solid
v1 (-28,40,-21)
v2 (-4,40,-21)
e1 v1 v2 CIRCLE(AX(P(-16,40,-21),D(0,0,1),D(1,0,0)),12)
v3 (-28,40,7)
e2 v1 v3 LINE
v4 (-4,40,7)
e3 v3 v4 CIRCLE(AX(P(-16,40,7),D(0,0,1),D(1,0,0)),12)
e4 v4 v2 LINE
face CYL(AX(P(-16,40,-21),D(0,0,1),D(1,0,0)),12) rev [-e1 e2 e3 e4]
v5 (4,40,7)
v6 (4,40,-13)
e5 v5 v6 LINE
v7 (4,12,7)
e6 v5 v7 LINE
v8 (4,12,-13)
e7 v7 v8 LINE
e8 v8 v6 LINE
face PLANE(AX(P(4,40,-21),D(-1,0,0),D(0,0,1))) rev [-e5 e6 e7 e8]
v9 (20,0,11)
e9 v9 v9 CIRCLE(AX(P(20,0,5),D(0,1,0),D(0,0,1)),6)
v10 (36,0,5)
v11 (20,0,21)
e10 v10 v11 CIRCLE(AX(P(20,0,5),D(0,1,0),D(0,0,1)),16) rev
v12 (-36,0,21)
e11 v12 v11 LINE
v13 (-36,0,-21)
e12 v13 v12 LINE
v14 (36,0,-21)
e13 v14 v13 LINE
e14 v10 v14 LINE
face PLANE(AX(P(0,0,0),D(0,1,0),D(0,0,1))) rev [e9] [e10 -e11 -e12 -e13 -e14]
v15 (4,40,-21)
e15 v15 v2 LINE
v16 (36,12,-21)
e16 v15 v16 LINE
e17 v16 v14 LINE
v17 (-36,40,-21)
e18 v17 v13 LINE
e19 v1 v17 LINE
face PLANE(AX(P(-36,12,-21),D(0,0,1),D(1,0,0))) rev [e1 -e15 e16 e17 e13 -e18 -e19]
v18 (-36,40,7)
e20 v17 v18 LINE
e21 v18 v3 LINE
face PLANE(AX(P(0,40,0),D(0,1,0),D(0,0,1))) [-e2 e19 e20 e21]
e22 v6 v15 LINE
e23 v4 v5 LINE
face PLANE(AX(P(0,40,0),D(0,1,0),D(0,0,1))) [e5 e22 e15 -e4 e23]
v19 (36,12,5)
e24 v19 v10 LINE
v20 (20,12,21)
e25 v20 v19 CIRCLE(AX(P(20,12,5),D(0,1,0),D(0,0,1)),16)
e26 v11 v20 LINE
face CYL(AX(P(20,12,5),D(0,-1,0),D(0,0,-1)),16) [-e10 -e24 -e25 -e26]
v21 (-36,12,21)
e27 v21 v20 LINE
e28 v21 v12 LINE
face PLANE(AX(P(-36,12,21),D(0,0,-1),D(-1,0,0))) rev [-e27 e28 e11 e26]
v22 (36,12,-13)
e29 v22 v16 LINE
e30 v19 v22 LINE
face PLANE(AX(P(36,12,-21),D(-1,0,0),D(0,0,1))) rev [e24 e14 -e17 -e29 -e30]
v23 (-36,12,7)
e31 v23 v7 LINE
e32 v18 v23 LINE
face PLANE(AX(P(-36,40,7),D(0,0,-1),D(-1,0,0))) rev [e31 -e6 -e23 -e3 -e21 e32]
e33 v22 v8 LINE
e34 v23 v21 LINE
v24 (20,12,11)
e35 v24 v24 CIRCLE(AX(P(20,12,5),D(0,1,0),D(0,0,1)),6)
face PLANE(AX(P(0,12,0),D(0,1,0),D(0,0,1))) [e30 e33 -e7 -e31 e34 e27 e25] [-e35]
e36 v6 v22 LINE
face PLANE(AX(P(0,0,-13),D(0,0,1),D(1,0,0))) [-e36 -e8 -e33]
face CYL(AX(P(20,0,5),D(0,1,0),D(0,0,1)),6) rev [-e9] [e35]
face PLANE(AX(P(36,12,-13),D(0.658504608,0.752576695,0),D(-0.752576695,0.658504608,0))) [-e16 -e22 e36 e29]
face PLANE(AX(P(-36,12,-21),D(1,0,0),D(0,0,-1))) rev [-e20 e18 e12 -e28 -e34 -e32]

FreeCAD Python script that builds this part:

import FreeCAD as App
import Part
import Sketcher


def edges_at(feature, points):
    """Names of the edges that pass closest to the given points."""
    edges = feature.Shape.Edges
    near = lambda p: min(range(len(edges)), key=lambda i: edges[i].distToShape(Part.Vertex(*p))[0])
    return sorted({f"Edge{near(p) + 1}" for p in points})


def add_polygon(sketch, points):
    """Adds a closed chain of lines whose ends are joined by coincident constraints."""
    first, n = sketch.GeometryCount, len(points)
    for a, b in zip(points, points[1:] + points[:1]):
        sketch.addGeometry(Part.LineSegment(App.Vector(*a, 0), App.Vector(*b, 0)), False)
    for i in range(n):
        sketch.addConstraint(Sketcher.Constraint("Coincident", first + i, 2, first + (i + 1) % n, 1))

doc = App.newDocument("Part")
params = doc.addObject("Spreadsheet::Sheet", "Params")
for row, (alias, value) in enumerate([
    ("sketch1_width", "72 mm"),
    ("sketch1_height", "42 mm"),
    ("pad1_length", "12 mm"),
    ("sketch2_width", "40 mm"),
    ("sketch2_height", "28 mm"),
    ("pad2_length", "28 mm"),
    ("sketch3_diameter", "24 mm"),
    ("sketch4_width", "32 mm"),
    ("sketch4_height", "28 mm"),
    ("pad3_length", "8 mm"),
    ("fillet_radius", "16 mm"),
    ("sketch5_diameter", "12 mm"),
], start=1):
    params.set(f"A{row}", alias)
    params.set(f"B{row}", "=" + value)
    params.setAlias(f"B{row}", alias)

body = doc.addObject("PartDesign::Body", "Body")

# Sketch on XZ plane
sketch1 = body.newObject("Sketcher::SketchObject", "Sketch")
sketch1.AttachmentSupport = (doc.getObject("XZ_Plane"), [""])
sketch1.MapMode = "FlatFace"
add_polygon(sketch1, [(-36, -21), (-36, 21), (36, 21), (36, -21)])  # lines 0-3
sketch1.addConstraint(Sketcher.Constraint("Vertical", 0))
sketch1.addConstraint(Sketcher.Constraint("Horizontal", 1))
sketch1.addConstraint(Sketcher.Constraint("Vertical", 2))
sketch1.addConstraint(Sketcher.Constraint("Horizontal", 3))
sketch1.addConstraint(Sketcher.Constraint("Symmetric", 0, 2, 2, 2, -1, 1))
sketch1.addConstraint(Sketcher.Constraint("DistanceX", 1, 1, 1, 2, 72.0))
sketch1.addConstraint(Sketcher.Constraint("DistanceY", 0, 1, 0, 2, 42.0))
sketch1.setExpression("Constraints[9]", "Params.sketch1_width")
sketch1.setExpression("Constraints[10]", "Params.sketch1_height")
pad1 = body.newObject("PartDesign::Pad", "Pad")
pad1.Profile = sketch1
pad1.setExpression("Length", "Params.pad1_length")
pad1.Reversed = True

# Sketch on XZ plane
sketch2 = body.newObject("Sketcher::SketchObject", "Sketch001")
sketch2.AttachmentSupport = (doc.getObject("XZ_Plane"), [""])
sketch2.MapMode = "FlatFace"
sketch2.AttachmentOffset = App.Placement(App.Vector(0, 0, -12), App.Rotation())
add_polygon(sketch2, [(-36, -21), (-36, 7), (4, 7), (4, -21)])  # lines 0-3
sketch2.addConstraint(Sketcher.Constraint("Vertical", 0))
sketch2.addConstraint(Sketcher.Constraint("Horizontal", 1))
sketch2.addConstraint(Sketcher.Constraint("Vertical", 2))
sketch2.addConstraint(Sketcher.Constraint("Horizontal", 3))
sketch2.addConstraint(Sketcher.Constraint("DistanceX", 1, 1, 1, 2, 40.0))
sketch2.addConstraint(Sketcher.Constraint("DistanceY", 0, 1, 0, 2, 28.0))
sketch2.addConstraint(Sketcher.Constraint("DistanceX", 0, 2, -1, 1, 36.0))
sketch2.addConstraint(Sketcher.Constraint("DistanceY", -1, 1, 0, 2, 7.0))
sketch2.setExpression("Constraints[8]", "Params.sketch2_width")
sketch2.setExpression("Constraints[9]", "Params.sketch2_height")
pad2 = body.newObject("PartDesign::Pad", "Pad001")
pad2.Profile = sketch2
pad2.setExpression("Length", "Params.pad2_length")
pad2.Reversed = True

# Sketch on XY plane
sketch3 = body.newObject("Sketcher::SketchObject", "Sketch002")
sketch3.AttachmentSupport = (doc.getObject("XY_Plane"), [""])
sketch3.MapMode = "FlatFace"
sketch3.AttachmentOffset = App.Placement(App.Vector(0, 0, 7), App.Rotation())
sketch3.addGeometry(Part.Circle(App.Vector(-16, 40, 0), App.Vector(0, 0, 1), 12), False)
sketch3.addConstraint(Sketcher.Constraint("Diameter", 0, 24.0))
sketch3.addConstraint(Sketcher.Constraint("DistanceX", 0, 3, -1, 1, 16.0))
sketch3.addConstraint(Sketcher.Constraint("DistanceY", -1, 1, 0, 3, 40.0))
sketch3.setExpression("Constraints[0]", "Params.sketch3_diameter")
pocket1 = body.newObject("PartDesign::Pocket", "Pocket")
pocket1.Profile = sketch3
pocket1.Type = "ThroughAll"

# Sketch on XY plane
sketch4 = body.newObject("Sketcher::SketchObject", "Sketch003")
sketch4.AttachmentSupport = (doc.getObject("XY_Plane"), [""])
sketch4.MapMode = "FlatFace"
sketch4.AttachmentOffset = App.Placement(App.Vector(0, 0, -21), App.Rotation())
add_polygon(sketch4, [(4, 12), (4, 40), (36, 12)])  # lines 0-2
sketch4.addConstraint(Sketcher.Constraint("Vertical", 0))
sketch4.addConstraint(Sketcher.Constraint("Horizontal", 2))
sketch4.addConstraint(Sketcher.Constraint("DistanceX", 2, 2, 2, 1, 32.0))
sketch4.addConstraint(Sketcher.Constraint("DistanceY", 0, 1, 0, 2, 28.0))
sketch4.addConstraint(Sketcher.Constraint("DistanceX", -1, 1, 0, 2, 4.0))
sketch4.addConstraint(Sketcher.Constraint("DistanceY", -1, 1, 0, 2, 40.0))
sketch4.setExpression("Constraints[5]", "Params.sketch4_width")
sketch4.setExpression("Constraints[6]", "Params.sketch4_height")
pad3 = body.newObject("PartDesign::Pad", "Pad002")
pad3.Profile = sketch4
pad3.setExpression("Length", "Params.pad3_length")
doc.recompute()

fillet = body.newObject("PartDesign::Fillet", "Fillet")
fillet.Base = (pad3, edges_at(pad3, [(36, 6, 21)]))
fillet.setExpression("Radius", "Params.fillet_radius")

# Sketch on XZ plane
sketch5 = body.newObject("Sketcher::SketchObject", "Sketch004")
sketch5.AttachmentSupport = (doc.getObject("XZ_Plane"), [""])
sketch5.MapMode = "FlatFace"
sketch5.AttachmentOffset = App.Placement(App.Vector(0, 0, -12), App.Rotation())
sketch5.addGeometry(Part.Circle(App.Vector(20, 5, 0), App.Vector(0, 0, 1), 6), False)
sketch5.addConstraint(Sketcher.Constraint("Diameter", 0, 12.0))
sketch5.addConstraint(Sketcher.Constraint("DistanceX", -1, 1, 0, 3, 20.0))
sketch5.addConstraint(Sketcher.Constraint("DistanceY", -1, 1, 0, 3, 5.0))
sketch5.setExpression("Constraints[0]", "Params.sketch5_diameter")
pocket2 = body.newObject("PartDesign::Pocket", "Pocket001")
pocket2.Profile = sketch5
pocket2.Type = "ThroughAll"
pocket2.Reversed = True

doc.recompute()
